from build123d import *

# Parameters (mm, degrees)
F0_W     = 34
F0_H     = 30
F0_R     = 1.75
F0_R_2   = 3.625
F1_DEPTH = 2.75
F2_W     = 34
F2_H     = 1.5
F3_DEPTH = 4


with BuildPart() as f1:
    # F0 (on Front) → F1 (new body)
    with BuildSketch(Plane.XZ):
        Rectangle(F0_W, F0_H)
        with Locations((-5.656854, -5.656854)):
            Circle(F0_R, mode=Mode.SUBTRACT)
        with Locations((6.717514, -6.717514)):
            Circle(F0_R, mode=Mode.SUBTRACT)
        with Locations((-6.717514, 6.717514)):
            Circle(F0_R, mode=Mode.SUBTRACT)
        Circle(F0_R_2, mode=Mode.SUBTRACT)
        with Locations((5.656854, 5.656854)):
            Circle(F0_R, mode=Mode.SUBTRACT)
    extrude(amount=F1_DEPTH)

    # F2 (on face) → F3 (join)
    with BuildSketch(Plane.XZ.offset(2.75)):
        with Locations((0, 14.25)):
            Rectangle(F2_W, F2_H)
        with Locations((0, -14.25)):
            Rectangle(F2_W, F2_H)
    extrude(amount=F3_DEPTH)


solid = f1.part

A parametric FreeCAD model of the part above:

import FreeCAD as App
import Part
import Sketcher
from FreeCAD import Vector

doc = App.newDocument("Part")
body = doc.addObject("PartDesign::Body", "Body")

# Sketch on XZ plane
sketch1 = body.newObject("Sketcher::SketchObject", "Sketch")
sketch1.AttachmentSupport = (doc.getObject("XZ_Plane"), [""])
sketch1.MapMode = "FlatFace"
sketch1.addGeometry([
    Part.LineSegment(Vector(-17, 15, 0), Vector(-17, -15, 0)),  # 0
    Part.LineSegment(Vector(-17, -15, 0), Vector(17, -15, 0)),  # 1
    Part.LineSegment(Vector(17, -15, 0), Vector(17, 15, 0)),  # 2
    Part.LineSegment(Vector(17, 15, 0), Vector(-17, 15, 0)),  # 3
    Part.Circle(Vector(-5.7, -5.7, 0), Vector(0, 0, 1), 1.8),  # 4
    Part.Circle(Vector(6.7, -6.7, 0), Vector(0, 0, 1), 1.8),  # 5
    Part.Circle(Vector(-6.7, 6.7, 0), Vector(0, 0, 1), 1.8),  # 6
    Part.Circle(Vector(0, 0, 0), Vector(0, 0, 1), 3.6),  # 7
    Part.Circle(Vector(5.7, 5.7, 0), Vector(0, 0, 1), 1.8),  # 8
], False)
sketch1.addConstraint([
    Sketcher.Constraint("Coincident", 0, 2, 1, 1),
    Sketcher.Constraint("Coincident", 1, 2, 2, 1),
    Sketcher.Constraint("Coincident", 2, 2, 3, 1),
    Sketcher.Constraint("Coincident", 3, 2, 0, 1),
    Sketcher.Constraint("Vertical", 0),
    Sketcher.Constraint("Horizontal", 1),
    Sketcher.Constraint("Vertical", 2),
    Sketcher.Constraint("Horizontal", 3),
    Sketcher.Constraint("Coincident", 7, 3, -1, 1),
    Sketcher.Constraint("Equal", 4, 5),
    Sketcher.Constraint("Equal", 5, 6),
    Sketcher.Constraint("Equal", 6, 8),
    Sketcher.Constraint("Symmetric", 5, 3, 6, 3, -1, 1),
    Sketcher.Constraint("Symmetric", 4, 3, 8, 3, -1, 1),
    Sketcher.Constraint("Symmetric", 0, 2, 2, 2, -1, 1),
    Sketcher.Constraint("Diameter", 4, 3.5),
    Sketcher.Constraint("Diameter", 7, 7.25),
    Sketcher.Constraint("DistanceX", 1, 1, 1, 2, 34.0),
    Sketcher.Constraint("DistanceY", 0, 2, 0, 1, 30.0),
    Sketcher.Constraint("DistanceY", 5, 3, 4, 3, 1.06066),
    Sketcher.Constraint("DistanceX", 6, 3, 4, 3, 1.06066),
    Sketcher.Constraint("DistanceX", 6, 3, 5, 3, 13.435028),
    Sketcher.Constraint("DistanceY", 5, 3, 6, 3, 13.435028),
])
pad1 = body.newObject("PartDesign::Pad", "Pad")
pad1.Profile = sketch1
pad1.Length = 2.75

# Sketch on XZ plane
sketch2 = body.newObject("Sketcher::SketchObject", "Sketch001")
sketch2.AttachmentSupport = (doc.getObject("XZ_Plane"), [""])
sketch2.MapMode = "FlatFace"
sketch2.AttachmentOffset = App.Placement(Vector(0, 0, 2.75), App.Rotation())
sketch2.addGeometry([
    Part.LineSegment(Vector(-17, 15, 0), Vector(-17, 13.5, 0)),  # 0
    Part.LineSegment(Vector(-17, 13.5, 0), Vector(17, 13.5, 0)),  # 1
    Part.LineSegment(Vector(17, 13.5, 0), Vector(17, 15, 0)),  # 2
    Part.LineSegment(Vector(17, 15, 0), Vector(-17, 15, 0)),  # 3
    Part.LineSegment(Vector(-17, -13.5, 0), Vector(-17, -15, 0)),  # 4
    Part.LineSegment(Vector(-17, -15, 0), Vector(17, -15, 0)),  # 5
    Part.LineSegment(Vector(17, -15, 0), Vector(17, -13.5, 0)),  # 6
    Part.LineSegment(Vector(17, -13.5, 0), Vector(-17, -13.5, 0)),  # 7
], False)
sketch2.addConstraint([
    Sketcher.Constraint("Coincident", 0, 2, 1, 1),
    Sketcher.Constraint("Coincident", 1, 2, 2, 1),
    Sketcher.Constraint("Coincident", 2, 2, 3, 1),
    Sketcher.Constraint("Coincident", 3, 2, 0, 1),
    Sketcher.Constraint("Coincident", 4, 2, 5, 1),
    Sketcher.Constraint("Coincident", 5, 2, 6, 1),
    Sketcher.Constraint("Coincident", 6, 2, 7, 1),
    Sketcher.Constraint("Coincident", 7, 2, 4, 1),
    Sketcher.Constraint("Vertical", 0),
    Sketcher.Constraint("Horizontal", 1),
    Sketcher.Constraint("Vertical", 2),
    Sketcher.Constraint("Horizontal", 3),
    Sketcher.Constraint("Vertical", 4),
    Sketcher.Constraint("Horizontal", 5),
    Sketcher.Constraint("Vertical", 6),
    Sketcher.Constraint("Horizontal", 7),
    Sketcher.Constraint("Symmetric", 2, 2, 4, 2, -1, 1),
    Sketcher.Constraint("Symmetric", 0, 2, 6, 2, -1, 1),
    Sketcher.Constraint("Vertical", 3, 2, 4, 2),
    Sketcher.Constraint("DistanceX", 1, 1, 1, 2, 34.0),
    Sketcher.Constraint("DistanceY", 0, 2, 0, 1, 1.5),
    Sketcher.Constraint("DistanceY", -1, 1, 2, 2, 15.0),
])
pad2 = body.newObject("PartDesign::Pad", "Pad001")
pad2.Profile = sketch2
pad2.Length = 4

doc.recompute()
